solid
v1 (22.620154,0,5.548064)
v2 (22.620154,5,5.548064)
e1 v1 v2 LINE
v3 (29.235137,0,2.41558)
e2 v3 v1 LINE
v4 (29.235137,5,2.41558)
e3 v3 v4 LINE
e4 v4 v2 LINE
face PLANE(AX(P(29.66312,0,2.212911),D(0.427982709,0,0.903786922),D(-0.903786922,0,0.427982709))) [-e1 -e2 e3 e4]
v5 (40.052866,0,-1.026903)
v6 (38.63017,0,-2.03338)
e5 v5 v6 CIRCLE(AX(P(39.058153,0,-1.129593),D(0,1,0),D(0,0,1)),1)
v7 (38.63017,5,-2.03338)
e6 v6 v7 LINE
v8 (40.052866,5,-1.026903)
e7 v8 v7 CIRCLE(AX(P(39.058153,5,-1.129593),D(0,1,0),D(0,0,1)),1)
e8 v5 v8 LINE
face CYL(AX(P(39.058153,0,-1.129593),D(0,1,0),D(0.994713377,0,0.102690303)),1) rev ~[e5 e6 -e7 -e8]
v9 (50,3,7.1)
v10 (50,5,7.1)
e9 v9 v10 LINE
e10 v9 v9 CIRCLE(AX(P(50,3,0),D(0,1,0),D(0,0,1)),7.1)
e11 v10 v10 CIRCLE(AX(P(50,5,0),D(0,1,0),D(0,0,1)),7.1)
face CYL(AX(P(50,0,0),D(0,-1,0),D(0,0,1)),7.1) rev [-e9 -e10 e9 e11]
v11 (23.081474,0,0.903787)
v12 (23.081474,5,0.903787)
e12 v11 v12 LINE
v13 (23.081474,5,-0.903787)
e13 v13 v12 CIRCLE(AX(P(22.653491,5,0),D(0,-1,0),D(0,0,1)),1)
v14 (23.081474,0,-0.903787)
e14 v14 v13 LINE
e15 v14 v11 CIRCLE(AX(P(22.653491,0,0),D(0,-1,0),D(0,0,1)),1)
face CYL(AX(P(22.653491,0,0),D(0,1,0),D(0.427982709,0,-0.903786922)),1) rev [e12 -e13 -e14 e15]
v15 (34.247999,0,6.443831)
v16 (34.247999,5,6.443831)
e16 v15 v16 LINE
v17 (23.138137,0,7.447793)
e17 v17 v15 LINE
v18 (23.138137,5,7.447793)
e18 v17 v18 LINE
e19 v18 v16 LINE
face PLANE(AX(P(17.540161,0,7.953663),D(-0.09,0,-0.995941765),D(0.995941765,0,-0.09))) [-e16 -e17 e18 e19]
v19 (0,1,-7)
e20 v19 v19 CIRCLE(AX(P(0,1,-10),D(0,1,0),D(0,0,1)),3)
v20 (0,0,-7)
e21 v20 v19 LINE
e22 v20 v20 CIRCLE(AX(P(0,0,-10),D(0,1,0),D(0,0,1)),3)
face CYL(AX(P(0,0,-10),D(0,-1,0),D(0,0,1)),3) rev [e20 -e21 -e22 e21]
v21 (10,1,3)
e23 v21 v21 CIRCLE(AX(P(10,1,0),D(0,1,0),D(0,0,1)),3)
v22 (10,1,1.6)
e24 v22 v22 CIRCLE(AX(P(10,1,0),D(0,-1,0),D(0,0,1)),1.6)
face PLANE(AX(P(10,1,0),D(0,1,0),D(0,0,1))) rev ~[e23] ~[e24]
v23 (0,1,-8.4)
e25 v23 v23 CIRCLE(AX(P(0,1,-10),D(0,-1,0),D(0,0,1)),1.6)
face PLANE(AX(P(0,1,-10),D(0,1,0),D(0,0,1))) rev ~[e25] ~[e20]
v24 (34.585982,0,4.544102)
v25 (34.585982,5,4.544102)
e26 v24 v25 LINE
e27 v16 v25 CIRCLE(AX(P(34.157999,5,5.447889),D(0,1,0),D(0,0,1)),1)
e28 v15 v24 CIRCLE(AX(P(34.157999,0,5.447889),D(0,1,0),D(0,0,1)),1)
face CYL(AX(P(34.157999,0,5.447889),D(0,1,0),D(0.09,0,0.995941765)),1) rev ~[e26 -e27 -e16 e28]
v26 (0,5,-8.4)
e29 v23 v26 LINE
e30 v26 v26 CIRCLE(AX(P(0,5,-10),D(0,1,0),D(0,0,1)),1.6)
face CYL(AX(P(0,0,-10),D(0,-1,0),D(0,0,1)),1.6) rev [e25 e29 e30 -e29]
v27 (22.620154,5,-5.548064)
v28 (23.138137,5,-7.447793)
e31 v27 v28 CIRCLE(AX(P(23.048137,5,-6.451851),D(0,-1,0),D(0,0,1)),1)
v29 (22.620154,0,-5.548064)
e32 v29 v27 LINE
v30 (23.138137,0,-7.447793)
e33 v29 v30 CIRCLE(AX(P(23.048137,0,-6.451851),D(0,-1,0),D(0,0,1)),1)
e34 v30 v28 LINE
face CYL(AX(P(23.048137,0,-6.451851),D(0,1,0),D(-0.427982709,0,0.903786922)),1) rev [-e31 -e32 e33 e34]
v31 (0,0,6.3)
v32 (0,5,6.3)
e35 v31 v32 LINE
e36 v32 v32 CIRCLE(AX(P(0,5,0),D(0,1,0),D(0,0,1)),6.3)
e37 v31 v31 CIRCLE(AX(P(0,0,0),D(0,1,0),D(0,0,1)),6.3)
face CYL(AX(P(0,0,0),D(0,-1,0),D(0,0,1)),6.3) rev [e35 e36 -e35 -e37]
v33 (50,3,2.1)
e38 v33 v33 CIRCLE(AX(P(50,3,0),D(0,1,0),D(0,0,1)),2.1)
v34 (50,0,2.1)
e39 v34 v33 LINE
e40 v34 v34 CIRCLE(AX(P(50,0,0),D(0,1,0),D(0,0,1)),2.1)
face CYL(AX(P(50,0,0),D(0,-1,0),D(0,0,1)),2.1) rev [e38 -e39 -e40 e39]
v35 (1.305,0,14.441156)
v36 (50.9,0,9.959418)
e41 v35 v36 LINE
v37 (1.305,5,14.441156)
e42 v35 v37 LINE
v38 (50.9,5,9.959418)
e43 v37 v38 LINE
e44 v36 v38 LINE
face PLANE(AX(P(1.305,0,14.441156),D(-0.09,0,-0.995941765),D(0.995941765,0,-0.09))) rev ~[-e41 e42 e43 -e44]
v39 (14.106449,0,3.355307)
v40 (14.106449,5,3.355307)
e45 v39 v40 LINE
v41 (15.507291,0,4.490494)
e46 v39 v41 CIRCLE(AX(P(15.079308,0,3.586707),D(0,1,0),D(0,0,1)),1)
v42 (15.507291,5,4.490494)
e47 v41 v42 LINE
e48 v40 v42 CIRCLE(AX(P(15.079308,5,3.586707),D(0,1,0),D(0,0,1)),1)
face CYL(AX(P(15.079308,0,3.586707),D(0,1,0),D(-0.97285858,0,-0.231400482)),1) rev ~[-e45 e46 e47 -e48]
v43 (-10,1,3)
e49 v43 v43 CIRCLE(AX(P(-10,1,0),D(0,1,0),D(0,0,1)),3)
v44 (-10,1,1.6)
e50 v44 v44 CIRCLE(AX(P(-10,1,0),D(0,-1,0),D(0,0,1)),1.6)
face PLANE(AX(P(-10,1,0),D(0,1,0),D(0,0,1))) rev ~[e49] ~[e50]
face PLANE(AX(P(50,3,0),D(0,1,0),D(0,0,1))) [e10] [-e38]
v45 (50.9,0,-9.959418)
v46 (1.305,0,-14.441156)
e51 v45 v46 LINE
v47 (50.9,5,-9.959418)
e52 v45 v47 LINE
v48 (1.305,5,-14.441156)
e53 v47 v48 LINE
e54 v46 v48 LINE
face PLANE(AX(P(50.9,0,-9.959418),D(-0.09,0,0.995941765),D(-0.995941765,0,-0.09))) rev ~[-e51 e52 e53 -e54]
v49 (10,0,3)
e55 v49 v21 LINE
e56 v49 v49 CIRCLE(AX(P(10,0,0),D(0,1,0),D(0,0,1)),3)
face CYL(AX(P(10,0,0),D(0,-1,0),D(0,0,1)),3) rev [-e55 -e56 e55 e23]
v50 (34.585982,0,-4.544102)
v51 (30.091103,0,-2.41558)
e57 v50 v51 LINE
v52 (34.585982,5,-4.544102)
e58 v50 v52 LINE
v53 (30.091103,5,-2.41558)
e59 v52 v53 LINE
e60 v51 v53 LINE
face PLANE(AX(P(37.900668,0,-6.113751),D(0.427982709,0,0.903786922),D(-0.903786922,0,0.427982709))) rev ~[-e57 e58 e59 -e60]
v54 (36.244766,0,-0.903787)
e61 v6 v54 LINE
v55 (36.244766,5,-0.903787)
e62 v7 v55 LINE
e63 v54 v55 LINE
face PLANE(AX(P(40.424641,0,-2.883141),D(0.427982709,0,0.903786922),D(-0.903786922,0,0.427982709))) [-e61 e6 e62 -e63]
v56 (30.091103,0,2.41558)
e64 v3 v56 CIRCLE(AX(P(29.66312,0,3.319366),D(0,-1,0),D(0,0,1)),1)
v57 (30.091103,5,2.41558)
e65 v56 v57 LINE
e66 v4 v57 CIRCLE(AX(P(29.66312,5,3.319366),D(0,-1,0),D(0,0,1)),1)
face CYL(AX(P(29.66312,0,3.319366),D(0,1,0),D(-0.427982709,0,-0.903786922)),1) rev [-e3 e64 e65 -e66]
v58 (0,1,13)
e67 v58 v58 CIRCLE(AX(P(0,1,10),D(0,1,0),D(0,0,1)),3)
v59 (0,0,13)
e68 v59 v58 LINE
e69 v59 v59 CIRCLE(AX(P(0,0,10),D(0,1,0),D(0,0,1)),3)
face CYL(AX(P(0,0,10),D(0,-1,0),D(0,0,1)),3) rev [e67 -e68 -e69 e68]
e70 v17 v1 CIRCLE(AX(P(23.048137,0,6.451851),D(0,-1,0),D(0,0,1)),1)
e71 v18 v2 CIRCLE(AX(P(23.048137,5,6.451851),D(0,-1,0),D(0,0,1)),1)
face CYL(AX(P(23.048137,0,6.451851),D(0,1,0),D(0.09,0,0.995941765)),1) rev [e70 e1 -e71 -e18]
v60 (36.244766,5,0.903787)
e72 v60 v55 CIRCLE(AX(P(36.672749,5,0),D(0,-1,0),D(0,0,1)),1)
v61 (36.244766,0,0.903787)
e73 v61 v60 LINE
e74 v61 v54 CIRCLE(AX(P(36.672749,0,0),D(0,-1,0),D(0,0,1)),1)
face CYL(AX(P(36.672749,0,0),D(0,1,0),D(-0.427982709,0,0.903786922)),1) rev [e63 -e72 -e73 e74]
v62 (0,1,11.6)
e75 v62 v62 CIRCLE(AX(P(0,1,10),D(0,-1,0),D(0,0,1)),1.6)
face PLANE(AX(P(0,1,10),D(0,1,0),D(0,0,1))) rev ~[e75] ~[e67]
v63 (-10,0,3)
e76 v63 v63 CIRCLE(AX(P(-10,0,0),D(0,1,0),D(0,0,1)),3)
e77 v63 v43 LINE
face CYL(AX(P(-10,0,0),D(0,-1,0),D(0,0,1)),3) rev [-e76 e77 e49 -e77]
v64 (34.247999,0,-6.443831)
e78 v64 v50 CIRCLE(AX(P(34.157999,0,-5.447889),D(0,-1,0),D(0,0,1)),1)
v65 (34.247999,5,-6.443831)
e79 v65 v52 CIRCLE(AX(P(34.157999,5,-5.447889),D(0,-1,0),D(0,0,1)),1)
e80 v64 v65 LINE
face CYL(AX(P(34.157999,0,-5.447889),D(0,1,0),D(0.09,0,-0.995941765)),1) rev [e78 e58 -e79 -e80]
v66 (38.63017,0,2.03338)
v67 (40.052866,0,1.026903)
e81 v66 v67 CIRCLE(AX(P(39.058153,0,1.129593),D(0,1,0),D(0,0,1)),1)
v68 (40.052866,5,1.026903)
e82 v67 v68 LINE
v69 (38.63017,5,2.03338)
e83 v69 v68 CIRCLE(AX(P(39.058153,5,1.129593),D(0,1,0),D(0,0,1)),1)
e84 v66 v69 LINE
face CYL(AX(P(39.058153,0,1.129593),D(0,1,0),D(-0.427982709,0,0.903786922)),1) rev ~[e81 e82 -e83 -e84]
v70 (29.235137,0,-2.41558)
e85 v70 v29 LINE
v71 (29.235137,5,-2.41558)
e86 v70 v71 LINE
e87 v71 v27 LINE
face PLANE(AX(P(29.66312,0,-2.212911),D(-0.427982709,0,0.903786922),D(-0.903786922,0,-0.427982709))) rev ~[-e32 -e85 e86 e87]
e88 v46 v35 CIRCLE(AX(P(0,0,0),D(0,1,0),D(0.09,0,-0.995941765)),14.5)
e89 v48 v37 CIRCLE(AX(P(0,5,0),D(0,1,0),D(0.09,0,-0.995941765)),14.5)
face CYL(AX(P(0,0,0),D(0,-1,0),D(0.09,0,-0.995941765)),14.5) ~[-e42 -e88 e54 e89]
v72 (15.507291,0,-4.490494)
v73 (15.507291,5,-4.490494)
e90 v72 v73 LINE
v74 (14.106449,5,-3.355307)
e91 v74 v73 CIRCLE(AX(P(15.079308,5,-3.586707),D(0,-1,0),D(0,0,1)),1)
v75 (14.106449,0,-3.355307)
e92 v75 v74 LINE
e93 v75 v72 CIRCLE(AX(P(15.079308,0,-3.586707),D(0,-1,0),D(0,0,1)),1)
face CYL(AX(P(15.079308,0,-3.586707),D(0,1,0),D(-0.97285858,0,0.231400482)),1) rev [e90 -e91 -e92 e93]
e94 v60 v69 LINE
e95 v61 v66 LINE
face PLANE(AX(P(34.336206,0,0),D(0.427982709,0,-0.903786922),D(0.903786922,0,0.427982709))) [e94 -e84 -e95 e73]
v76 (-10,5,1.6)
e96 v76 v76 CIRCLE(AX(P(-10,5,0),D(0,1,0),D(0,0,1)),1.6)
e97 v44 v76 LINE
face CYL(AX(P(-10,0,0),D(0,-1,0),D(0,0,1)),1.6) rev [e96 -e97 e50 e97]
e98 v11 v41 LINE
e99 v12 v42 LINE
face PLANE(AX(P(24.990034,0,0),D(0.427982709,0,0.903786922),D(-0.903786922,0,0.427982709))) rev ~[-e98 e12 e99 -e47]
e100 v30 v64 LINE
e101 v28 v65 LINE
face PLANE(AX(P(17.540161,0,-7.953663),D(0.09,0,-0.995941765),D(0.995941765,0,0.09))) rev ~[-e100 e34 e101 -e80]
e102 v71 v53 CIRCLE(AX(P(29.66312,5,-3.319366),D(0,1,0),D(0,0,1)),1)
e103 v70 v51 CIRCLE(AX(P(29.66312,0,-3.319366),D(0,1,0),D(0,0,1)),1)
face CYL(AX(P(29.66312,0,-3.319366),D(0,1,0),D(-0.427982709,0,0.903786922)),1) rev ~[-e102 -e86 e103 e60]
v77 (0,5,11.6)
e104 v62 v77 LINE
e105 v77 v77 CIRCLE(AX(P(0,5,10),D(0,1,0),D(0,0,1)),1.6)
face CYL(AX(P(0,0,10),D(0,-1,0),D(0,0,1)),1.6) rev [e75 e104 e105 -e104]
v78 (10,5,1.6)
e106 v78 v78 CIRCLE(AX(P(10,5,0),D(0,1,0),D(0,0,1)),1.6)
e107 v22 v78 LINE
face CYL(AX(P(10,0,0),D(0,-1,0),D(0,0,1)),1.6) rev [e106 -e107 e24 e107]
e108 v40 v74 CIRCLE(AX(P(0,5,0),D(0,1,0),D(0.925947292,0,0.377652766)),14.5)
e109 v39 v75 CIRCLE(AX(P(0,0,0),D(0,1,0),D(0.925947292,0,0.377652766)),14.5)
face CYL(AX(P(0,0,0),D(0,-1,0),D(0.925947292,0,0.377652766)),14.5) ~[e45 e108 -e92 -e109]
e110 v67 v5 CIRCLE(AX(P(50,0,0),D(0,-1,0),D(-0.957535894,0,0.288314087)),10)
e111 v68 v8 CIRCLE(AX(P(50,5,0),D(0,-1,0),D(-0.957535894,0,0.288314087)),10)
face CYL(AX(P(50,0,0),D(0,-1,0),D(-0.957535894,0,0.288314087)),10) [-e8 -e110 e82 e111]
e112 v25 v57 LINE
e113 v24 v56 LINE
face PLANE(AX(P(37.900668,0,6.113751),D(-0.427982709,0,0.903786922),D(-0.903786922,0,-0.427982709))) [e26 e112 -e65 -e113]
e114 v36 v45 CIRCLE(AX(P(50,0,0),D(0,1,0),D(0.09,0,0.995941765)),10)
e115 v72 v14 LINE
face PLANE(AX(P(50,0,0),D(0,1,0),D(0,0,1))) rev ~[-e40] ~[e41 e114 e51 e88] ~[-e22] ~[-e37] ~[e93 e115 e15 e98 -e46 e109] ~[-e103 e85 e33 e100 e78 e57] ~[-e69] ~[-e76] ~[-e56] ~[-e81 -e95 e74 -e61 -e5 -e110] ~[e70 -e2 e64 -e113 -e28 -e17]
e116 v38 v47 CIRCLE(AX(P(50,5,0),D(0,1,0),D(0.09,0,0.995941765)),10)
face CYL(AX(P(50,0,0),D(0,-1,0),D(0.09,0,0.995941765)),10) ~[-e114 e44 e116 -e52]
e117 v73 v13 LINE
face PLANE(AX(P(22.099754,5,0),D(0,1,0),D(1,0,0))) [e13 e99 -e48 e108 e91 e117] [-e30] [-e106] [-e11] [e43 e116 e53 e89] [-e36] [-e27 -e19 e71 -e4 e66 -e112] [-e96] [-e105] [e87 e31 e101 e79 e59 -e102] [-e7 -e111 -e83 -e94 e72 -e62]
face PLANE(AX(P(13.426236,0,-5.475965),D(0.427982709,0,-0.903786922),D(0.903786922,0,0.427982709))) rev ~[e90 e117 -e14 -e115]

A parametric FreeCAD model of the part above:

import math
import FreeCAD as App
import Part
import Sketcher

V = App.Vector


def edges_at(feature, points):
    """Names of the edges that pass closest to the given points."""
    edges = feature.Shape.Edges
    near = lambda p: min(range(len(edges)), key=lambda i: edges[i].distToShape(Part.Vertex(*p))[0])
    return sorted({f"Edge{near(p) + 1}" for p in points})


def add_polygon(sketch, points):
    """Adds a closed chain of lines whose ends are joined by coincident constraints."""
    first, n = sketch.GeometryCount, len(points)
    for a, b in zip(points, points[1:] + points[:1]):
        sketch.addGeometry(Part.LineSegment(App.Vector(*a, 0), App.Vector(*b, 0)), False)
    for i in range(n):
        sketch.addConstraint(Sketcher.Constraint("Coincident", first + i, 2, first + (i + 1) % n, 1))

doc = App.newDocument("Part")
body = doc.addObject("PartDesign::Body", "Body")

sketch1 = body.newObject("Sketcher::SketchObject", "Sketch")
sketch1.AttachmentSupport = (doc.getObject("XZ_Plane"), [""])
sketch1.MapMode = "FlatFace"
sketch1.addGeometry(Part.LineSegment(V(1.3, 14.4, 0), V(50.9, 10, 0)), False)
sketch1.addGeometry(Part.ArcOfCircle(Part.Circle(V(50, 0, 0), V(0, 0, 1), 10), math.radians(-85), math.radians(85)), False)
sketch1.addGeometry(Part.LineSegment(V(50.9, -10, 0), V(1.3, -14.4, 0)), False)
sketch1.addGeometry(Part.ArcOfCircle(Part.Circle(V(0, 0, 0), V(0, 0, 1), 14.5), math.radians(85), math.radians(275)), False)
sketch1.addGeometry(Part.Circle(V(0, 10, 0), V(0, 0, 1), 1.6), False)
add_polygon(sketch1, [(37.9, 6.1), (17.5, 8), (29.7, 2.2)])
sketch1.addGeometry(Part.Circle(V(-10, 0, 0), V(0, 0, 1), 1.6), False)
sketch1.addGeometry(Part.Circle(V(0, 0, 0), V(0, 0, 1), 6.3), False)
sketch1.addGeometry(Part.Circle(V(10, 0, 0), V(0, 0, 1), 1.6), False)
sketch1.addGeometry(Part.ArcOfCircle(Part.Circle(V(0, 0, 0), V(0, 0, 1), 14.5), math.radians(-22), math.radians(22)), False)
sketch1.addGeometry(Part.LineSegment(V(13.4, -5.5, 0), V(25, 0, 0)), False)
sketch1.addGeometry(Part.LineSegment(V(25, 0, 0), V(13.4, 5.5, 0)), False)
sketch1.addGeometry(Part.Circle(V(0, -10, 0), V(0, 0, 1), 1.6), False)
sketch1.addGeometry(Part.LineSegment(V(40.4, 2.9, 0), V(34.3, 0, 0)), False)
sketch1.addGeometry(Part.LineSegment(V(34.3, 0, 0), V(40.4, -2.9, 0)), False)
sketch1.addGeometry(Part.ArcOfCircle(Part.Circle(V(50, 0, 0), V(0, 0, 1), 10), math.radians(163), math.radians(197)), False)
add_polygon(sketch1, [(29.7, -2.2), (17.5, -8), (37.9, -6.1)])
sketch1.addGeometry(Part.Circle(V(50, 0, 0), V(0, 0, 1), 7.1), False)
sketch1.addConstraint(Sketcher.Constraint("Tangent", 0, 2, 1, 2))
sketch1.addConstraint(Sketcher.Constraint("Tangent", 1, 1, 2, 1))
sketch1.addConstraint(Sketcher.Constraint("Tangent", 2, 2, 3, 2))
sketch1.addConstraint(Sketcher.Constraint("Tangent", 3, 1, 0, 1))
sketch1.addConstraint(Sketcher.Constraint("Coincident", 11, 1, 12, 1))
sketch1.addConstraint(Sketcher.Constraint("Coincident", 12, 2, 13, 1))
sketch1.addConstraint(Sketcher.Constraint("Coincident", 13, 2, 11, 2))
sketch1.addConstraint(Sketcher.Constraint("Coincident", 15, 2, 16, 1))
sketch1.addConstraint(Sketcher.Constraint("Coincident", 16, 2, 17, 2))
sketch1.addConstraint(Sketcher.Constraint("Coincident", 17, 1, 15, 1))
sketch1.addConstraint(Sketcher.Constraint("Coincident", 3, 3, -1, 1))
sketch1.addConstraint(Sketcher.Constraint("Coincident", 9, 3, -1, 1))
sketch1.addConstraint(Sketcher.Constraint("Coincident", 11, 3, -1, 1))
sketch1.addConstraint(Sketcher.Constraint("Coincident", 17, 3, 1, 3))
sketch1.addConstraint(Sketcher.Constraint("Coincident", 21, 3, 1, 3))
sketch1.addConstraint(Sketcher.Constraint("Equal", 4, 8))
sketch1.addConstraint(Sketcher.Constraint("Equal", 8, 10))
sketch1.addConstraint(Sketcher.Constraint("Equal", 3, 11))
sketch1.addConstraint(Sketcher.Constraint("Equal", 10, 14))
sketch1.addConstraint(Sketcher.Constraint("Equal", 1, 17))
sketch1.addConstraint(Sketcher.Constraint("Symmetric", 8, 3, 10, 3, -1, 1))
sketch1.addConstraint(Sketcher.Constraint("Symmetric", 4, 3, 14, 3, -1, 1))
sketch1.addConstraint(Sketcher.Constraint("Symmetric", 16, 2, 17, 1, -1))
sketch1.addConstraint(Sketcher.Constraint("Symmetric", 5, 2, 18, 2, -1))
sketch1.addConstraint(Sketcher.Constraint("Symmetric", 7, 2, 19, 2, -1))
sketch1.addConstraint(Sketcher.Constraint("Symmetric", 6, 2, 20, 2, -1))
sketch1.addConstraint(Sketcher.Constraint("PointOnObject", 4, 3, -2))
sketch1.addConstraint(Sketcher.Constraint("PointOnObject", 8, 3, -1))
sketch1.addConstraint(Sketcher.Constraint("PointOnObject", 12, 2, -1))
sketch1.addConstraint(Sketcher.Constraint("PointOnObject", 15, 2, -1))
sketch1.addConstraint(Sketcher.Constraint("Parallel", 0, 5))
sketch1.addConstraint(Sketcher.Constraint("Parallel", 7, 12))
sketch1.addConstraint(Sketcher.Constraint("Parallel", 6, 13))
sketch1.addConstraint(Sketcher.Constraint("Parallel", 12, 15))
sketch1.addConstraint(Sketcher.Constraint("Parallel", 13, 16))
sketch1.addConstraint(Sketcher.Constraint("Radius", 1, 10.0))
sketch1.addConstraint(Sketcher.Constraint("Diameter", 4, 3.2))
sketch1.addConstraint(Sketcher.Constraint("Diameter", 9, 12.6))
sketch1.addConstraint(Sketcher.Constraint("Diameter", 21, 14.2))
sketch1.addConstraint(Sketcher.Constraint("Radius", 3, 14.5))
sketch1.addConstraint(Sketcher.Constraint("DistanceX", -1, 1, 1, 3, 50.0))
sketch1.addConstraint(Sketcher.Constraint("DistanceY", -1, 1, 4, 3, 10.0))
sketch1.addConstraint(Sketcher.Constraint("DistanceX", 8, 3, -1, 1, 10.0))
sketch1.addConstraint(Sketcher.Constraint("DistanceX", 11, 1, 12, 2, 11.563798))
sketch1.addConstraint(Sketcher.Constraint("DistanceY", 13, 2, 5, 2, 2.477698))
sketch1.addConstraint(Sketcher.Constraint("DistanceY", 19, 2, 7, 2, 12.227502))
sketch1.addConstraint(Sketcher.Constraint("Distance", 5, 20.443472))
sketch1.addConstraint(Sketcher.Constraint("DistanceX", -1, 1, 5, 2, 17.540161))
sketch1.addConstraint(Sketcher.Constraint("DistanceX", -1, 1, 16, 2, 40.424641))
pad1 = body.newObject("PartDesign::Pad", "Pad")
pad1.Profile = sketch1
pad1.Length = 5
pad1.Reversed = True

sketch2 = body.newObject("Sketcher::SketchObject", "Sketch001")
sketch2.AttachmentSupport = (doc.getObject("XZ_Plane"), [""])
sketch2.MapMode = "FlatFace"
sketch2.addGeometry(Part.Circle(V(50, 0, 0), V(0, 0, 1), 7.1), False)
sketch2.addGeometry(Part.Circle(V(50, 0, 0), V(0, 0, 1), 2.1), False)
sketch2.addConstraint(Sketcher.Constraint("Coincident", 1, 3, 0, 3))
sketch2.addConstraint(Sketcher.Constraint("PointOnObject", 0, 3, -1))
sketch2.addConstraint(Sketcher.Constraint("Diameter", 0, 14.2))
sketch2.addConstraint(Sketcher.Constraint("Diameter", 1, 4.2))
sketch2.addConstraint(Sketcher.Constraint("DistanceX", -1, 1, 0, 3, 50.0))
pad2 = body.newObject("PartDesign::Pad", "Pad001")
pad2.Profile = sketch2
pad2.Length = 3
pad2.Reversed = True
doc.recompute()

fillet = body.newObject("PartDesign::Fillet", "Fillet")
fillet.Base = (pad2, edges_at(pad2, [(34.336, 2.5, 0), (40.425, 2.5, 2.883), (40.425, 2.5, -2.883)]))
fillet.Radius = 1
doc.recompute()

fillet2 = body.newObject("PartDesign::Fillet", "Fillet001")
fillet2.Base = (fillet, edges_at(fillet, [(17.54, 2.5, 7.954), (37.901, 2.5, 6.114), (29.663, 2.5, 2.213)]))
fillet2.Radius = 1
doc.recompute()

fillet3 = body.newObject("PartDesign::Fillet", "Fillet002")
fillet3.Base = (fillet2, edges_at(fillet2, [(37.901, 2.5, -6.114), (17.54, 2.5, -7.954), (29.663, 2.5, -2.213)]))
fillet3.Radius = 1
doc.recompute()

fillet4 = body.newObject("PartDesign::Fillet", "Fillet003")
fillet4.Base = (fillet3, edges_at(fillet3, [(24.99, 2.5, 0), (13.426, 2.5, -5.476), (13.426, 2.5, 5.476)]))
fillet4.Radius = 1

sketch3 = body.newObject("Sketcher::SketchObject", "Sketch002")
sketch3.AttachmentSupport = (doc.getObject("XZ_Plane"), [""])
sketch3.MapMode = "FlatFace"
sketch3.addGeometry(Part.Circle(V(0, 10, 0), V(0, 0, 1), 3), False)
sketch3.addGeometry(Part.Circle(V(-10, 0, 0), V(0, 0, 1), 3), False)
sketch3.addGeometry(Part.Circle(V(0, -10, 0), V(0, 0, 1), 3), False)
sketch3.addGeometry(Part.Circle(V(10, 0, 0), V(0, 0, 1), 3), False)
sketch3.addConstraint(Sketcher.Constraint("Equal", 0, 1))
sketch3.addConstraint(Sketcher.Constraint("Equal", 1, 2))
sketch3.addConstraint(Sketcher.Constraint("Equal", 2, 3))
sketch3.addConstraint(Sketcher.Constraint("Symmetric", 0, 3, 2, 3, -1, 1))
sketch3.addConstraint(Sketcher.Constraint("Symmetric", 1, 3, 3, 3, -1, 1))
sketch3.addConstraint(Sketcher.Constraint("PointOnObject", 0, 3, -2))
sketch3.addConstraint(Sketcher.Constraint("PointOnObject", 1, 3, -1))
sketch3.addConstraint(Sketcher.Constraint("Diameter", 0, 6.0))
sketch3.addConstraint(Sketcher.Constraint("DistanceY", -1, 1, 0, 3, 10.0))
sketch3.addConstraint(Sketcher.Constraint("DistanceX", 1, 3, -1, 1, 10.0))
pocket1 = body.newObject("PartDesign::Pocket", "Pocket")
pocket1.Profile = sketch3
pocket1.Length = 1

doc.recompute()
